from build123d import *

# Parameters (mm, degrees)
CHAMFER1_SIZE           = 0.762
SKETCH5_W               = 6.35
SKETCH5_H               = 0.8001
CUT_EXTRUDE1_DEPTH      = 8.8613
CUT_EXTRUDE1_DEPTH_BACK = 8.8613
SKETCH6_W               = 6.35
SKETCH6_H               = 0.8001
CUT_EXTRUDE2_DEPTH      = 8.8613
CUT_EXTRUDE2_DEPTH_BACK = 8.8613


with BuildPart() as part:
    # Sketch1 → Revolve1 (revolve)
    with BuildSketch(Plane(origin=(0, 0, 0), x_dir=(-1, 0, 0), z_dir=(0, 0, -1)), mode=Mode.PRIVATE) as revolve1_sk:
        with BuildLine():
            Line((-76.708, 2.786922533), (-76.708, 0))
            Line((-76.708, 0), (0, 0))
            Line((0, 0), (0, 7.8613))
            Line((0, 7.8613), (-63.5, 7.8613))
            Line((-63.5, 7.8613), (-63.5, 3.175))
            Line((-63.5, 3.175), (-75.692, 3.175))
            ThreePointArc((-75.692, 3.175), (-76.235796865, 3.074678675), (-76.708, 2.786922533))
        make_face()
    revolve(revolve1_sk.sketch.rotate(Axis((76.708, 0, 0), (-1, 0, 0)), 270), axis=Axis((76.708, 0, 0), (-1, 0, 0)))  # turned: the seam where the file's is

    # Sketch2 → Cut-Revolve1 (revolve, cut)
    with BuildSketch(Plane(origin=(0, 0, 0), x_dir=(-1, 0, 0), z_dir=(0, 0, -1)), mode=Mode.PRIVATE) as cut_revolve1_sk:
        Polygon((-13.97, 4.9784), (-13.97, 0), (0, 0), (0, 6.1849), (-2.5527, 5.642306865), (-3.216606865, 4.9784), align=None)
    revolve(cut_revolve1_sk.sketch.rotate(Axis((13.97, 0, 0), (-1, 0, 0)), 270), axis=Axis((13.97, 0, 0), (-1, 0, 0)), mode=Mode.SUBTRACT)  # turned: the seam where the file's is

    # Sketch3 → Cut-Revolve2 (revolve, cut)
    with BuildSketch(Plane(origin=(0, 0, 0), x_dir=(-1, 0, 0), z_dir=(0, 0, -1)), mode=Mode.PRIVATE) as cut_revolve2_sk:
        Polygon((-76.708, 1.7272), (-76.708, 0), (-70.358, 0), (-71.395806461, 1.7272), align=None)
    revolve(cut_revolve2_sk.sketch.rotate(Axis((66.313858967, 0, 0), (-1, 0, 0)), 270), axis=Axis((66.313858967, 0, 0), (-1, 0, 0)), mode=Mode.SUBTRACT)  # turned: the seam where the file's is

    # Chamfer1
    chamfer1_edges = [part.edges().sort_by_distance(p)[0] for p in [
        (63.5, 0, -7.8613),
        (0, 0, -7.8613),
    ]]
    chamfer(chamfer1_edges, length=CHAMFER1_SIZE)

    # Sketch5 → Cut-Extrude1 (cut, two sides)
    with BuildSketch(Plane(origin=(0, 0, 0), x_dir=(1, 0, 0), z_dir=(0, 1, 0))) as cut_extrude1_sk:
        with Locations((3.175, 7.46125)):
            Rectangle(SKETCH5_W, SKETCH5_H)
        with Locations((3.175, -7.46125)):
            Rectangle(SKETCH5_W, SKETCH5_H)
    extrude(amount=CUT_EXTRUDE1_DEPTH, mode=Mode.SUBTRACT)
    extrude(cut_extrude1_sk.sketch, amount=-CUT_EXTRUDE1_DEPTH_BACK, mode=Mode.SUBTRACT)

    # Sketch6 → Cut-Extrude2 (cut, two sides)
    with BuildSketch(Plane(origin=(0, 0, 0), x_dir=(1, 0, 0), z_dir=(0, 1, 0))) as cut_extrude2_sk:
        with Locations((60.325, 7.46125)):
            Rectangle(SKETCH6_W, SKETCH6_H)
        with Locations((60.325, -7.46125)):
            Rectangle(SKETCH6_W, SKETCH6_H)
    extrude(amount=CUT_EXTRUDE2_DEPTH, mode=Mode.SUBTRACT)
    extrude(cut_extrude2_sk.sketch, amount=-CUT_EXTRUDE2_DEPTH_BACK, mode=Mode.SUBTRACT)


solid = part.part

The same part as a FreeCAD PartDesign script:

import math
import FreeCAD as App
import Part
import Sketcher

V = App.Vector
Q = App.Units.Quantity


def edges_at(feature, points):
    """Names of the edges that pass closest to the given points."""
    edges = feature.Shape.Edges
    near = lambda p: min(range(len(edges)), key=lambda i: edges[i].distToShape(Part.Vertex(*p))[0])
    return sorted({f"Edge{near(p) + 1}" for p in points})


def add_polygon(sketch, points):
    """Adds a closed chain of lines whose ends are joined by coincident constraints."""
    first, n = sketch.GeometryCount, len(points)
    for a, b in zip(points, points[1:] + points[:1]):
        sketch.addGeometry(Part.LineSegment(App.Vector(*a, 0), App.Vector(*b, 0)), False)
    for i in range(n):
        sketch.addConstraint(Sketcher.Constraint("Coincident", first + i, 2, first + (i + 1) % n, 1))

doc = App.newDocument("Part")
body = doc.addObject("PartDesign::Body", "Body")

sketch1 = body.newObject("Sketcher::SketchObject", "Sketch")
sketch1.AttachmentSupport = (doc.getObject("XY_Plane"), [""])
sketch1.MapMode = "FlatFace"
sketch1.addGeometry([
    Part.LineSegment(V(76.7, 2.8, 0), V(76.7, 0, 0)),
    Part.LineSegment(V(76.7, 0, 0), V(0, 0, 0)),
    Part.LineSegment(V(0, 0, 0), V(0, 7.9, 0)),
    Part.LineSegment(V(0, 7.9, 0), V(63.5, 7.9, 0)),
    Part.LineSegment(V(63.5, 7.9, 0), V(63.5, 3.2, 0)),
    Part.LineSegment(V(63.5, 3.2, 0), V(75.7, 3.2, 0)),
    Part.ArcOfCircle(Part.Circle(V(75.7, 1.7, 0), V(0, 0, 1), 1.5), math.radians(48), math.radians(90)),
], False)
sketch1.addConstraint([
    Sketcher.Constraint("Coincident", 0, 2, 1, 1),
    Sketcher.Constraint("Coincident", 1, 2, 2, 1),
    Sketcher.Constraint("Coincident", 2, 2, 3, 1),
    Sketcher.Constraint("Coincident", 3, 2, 4, 1),
    Sketcher.Constraint("Coincident", 4, 2, 5, 1),
    Sketcher.Constraint("Tangent", 5, 2, 6, 2),
    Sketcher.Constraint("Coincident", 6, 1, 0, 1),
    Sketcher.Constraint("Vertical", 0),
    Sketcher.Constraint("Horizontal", 1),
    Sketcher.Constraint("Vertical", 2),
    Sketcher.Constraint("Horizontal", 3),
    Sketcher.Constraint("Vertical", 4),
    Sketcher.Constraint("Horizontal", 5),
    Sketcher.Constraint("Coincident", 1, 2, -1, 1),
    Sketcher.Constraint("Radius", 6, Q("0.06 in")),
    Sketcher.Constraint("DistanceX", 3, 1, 3, 2, Q("2.5 in")),
    Sketcher.Constraint("DistanceX", 1, 2, 1, 1, Q("3.02 in")),
    Sketcher.Constraint("DistanceX", 5, 1, 5, 2, Q("0.48 in")),
    Sketcher.Constraint("DistanceY", 2, 1, 2, 2, Q("0.3095 in")),
    Sketcher.Constraint("DistanceY", 4, 2, 4, 1, Q("0.1845 in")),
])
revolution = body.newObject("PartDesign::Revolution", "Revolution")
revolution.Profile = sketch1
revolution.ReferenceAxis = (sketch1, ["H_Axis"])
revolution.Angle = 360

sketch2 = body.newObject("Sketcher::SketchObject", "Sketch001")
sketch2.AttachmentSupport = (doc.getObject("XY_Plane"), [""])
sketch2.MapMode = "FlatFace"
add_polygon(sketch2, [(14, 5), (14, 0), (0, 0), (0, 6.2), (2.6, 5.6), (3.2, 5)])
sketch2.addConstraint([
    Sketcher.Constraint("Vertical", 0),
    Sketcher.Constraint("Horizontal", 1),
    Sketcher.Constraint("Vertical", 2),
    Sketcher.Constraint("Horizontal", 5),
    Sketcher.Constraint("Coincident", 1, 2, -1, 1),
    Sketcher.Constraint("Angle", 3, Q("-12 deg")),
    Sketcher.Constraint("Angle", 4, Q("-45 deg")),
    Sketcher.Constraint("DistanceX", 1, 2, 1, 1, Q("0.55 in")),
    Sketcher.Constraint("DistanceY", 0, 2, 0, 1, Q("0.196 in")),
    Sketcher.Constraint("DistanceY", 2, 1, 2, 2, Q("0.2435 in")),
    Sketcher.Constraint("DistanceX", -1, 1, 3, 2, Q("0.1005 in")),
])
groove = body.newObject("PartDesign::Groove", "Groove")
groove.Profile = sketch2
groove.ReferenceAxis = (sketch2, ["H_Axis"])
groove.Angle = 360

sketch3 = body.newObject("Sketcher::SketchObject", "Sketch002")
sketch3.AttachmentSupport = (doc.getObject("XY_Plane"), [""])
sketch3.MapMode = "FlatFace"
add_polygon(sketch3, [(76.7, 1.7), (76.7, 0), (70.4, 0), (71.4, 1.7)])
sketch3.addConstraint([
    Sketcher.Constraint("Vertical", 0),
    Sketcher.Constraint("Horizontal", 1),
    Sketcher.Constraint("Horizontal", 3),
    Sketcher.Constraint("PointOnObject", 0, 2, -1),
    Sketcher.Constraint("Angle", 2, Q("59 deg")),
    Sketcher.Constraint("DistanceX", 1, 2, 1, 1, Q("0.25 in")),
    Sketcher.Constraint("DistanceY", 0, 2, 0, 1, Q("0.068 in")),
    Sketcher.Constraint("DistanceX", -1, 1, 0, 2, Q("3.02 in")),
])
groove2 = body.newObject("PartDesign::Groove", "Groove001")
groove2.Profile = sketch3
groove2.ReferenceAxis = (sketch3, ["H_Axis"])
groove2.Angle = 360
doc.recompute()

chamfer = body.newObject("PartDesign::Chamfer", "Chamfer")
chamfer.Base = (groove2, edges_at(groove2, [(63.5, 0, -7.861), (0, 0, -7.861)]))
chamfer.Size = Q("0.03 in")

sketch4 = body.newObject("Sketcher::SketchObject", "Sketch003")
sketch4.AttachmentSupport = (doc.getObject("XZ_Plane"), [""])
sketch4.MapMode = "FlatFace"
add_polygon(sketch4, [(0, -7.9), (0, -7.1), (6.3, -7.1), (6.3, -7.9)])
add_polygon(sketch4, [(0, 7.1), (0, 7.9), (6.3, 7.9), (6.3, 7.1)])
sketch4.addConstraint([
    Sketcher.Constraint("Vertical", 0),
    Sketcher.Constraint("Horizontal", 1),
    Sketcher.Constraint("Vertical", 2),
    Sketcher.Constraint("Horizontal", 3),
    Sketcher.Constraint("Vertical", 4),
    Sketcher.Constraint("Horizontal", 5),
    Sketcher.Constraint("Vertical", 6),
    Sketcher.Constraint("Horizontal", 7),
    Sketcher.Constraint("Symmetric", 3, 2, 4, 2, -1, 1),
    Sketcher.Constraint("Symmetric", 1, 2, 6, 2, -1),
    Sketcher.Constraint("PointOnObject", 0, 2, -2),
    Sketcher.Constraint("DistanceX", 1, 1, 1, 2, Q("0.25 in")),
    Sketcher.Constraint("DistanceY", 0, 1, 0, 2, Q("0.0315 in")),
    Sketcher.Constraint("DistanceY", 0, 2, -1, 1, Q("0.278 in")),
])
pocket1 = body.newObject("PartDesign::Pocket", "Pocket")
pocket1.Profile = sketch4
pocket1.Type = "ThroughAll"
pocket1.Midplane = True

sketch5 = body.newObject("Sketcher::SketchObject", "Sketch004")
sketch5.AttachmentSupport = (doc.getObject("XZ_Plane"), [""])
sketch5.MapMode = "FlatFace"
add_polygon(sketch5, [(57.1, -7.9), (57.1, -7.1), (63.5, -7.1), (63.5, -7.9)])
add_polygon(sketch5, [(57.1, 7.1), (57.1, 7.9), (63.5, 7.9), (63.5, 7.1)])
sketch5.addConstraint([
    Sketcher.Constraint("Vertical", 0),
    Sketcher.Constraint("Horizontal", 1),
    Sketcher.Constraint("Vertical", 2),
    Sketcher.Constraint("Horizontal", 3),
    Sketcher.Constraint("Vertical", 4),
    Sketcher.Constraint("Horizontal", 5),
    Sketcher.Constraint("Vertical", 6),
    Sketcher.Constraint("Horizontal", 7),
    Sketcher.Constraint("Symmetric", 3, 2, 4, 2, -1),
    Sketcher.Constraint("Symmetric", 1, 2, 6, 2, -1),
    Sketcher.Constraint("DistanceX", 1, 1, 1, 2, Q("0.25 in")),
    Sketcher.Constraint("DistanceX", -1, 1, 1, 2, Q("2.5 in")),
    Sketcher.Constraint("DistanceY", 0, 1, 0, 2, Q("0.0315 in")),
    Sketcher.Constraint("DistanceY", 0, 2, -1, 1, Q("0.278 in")),
])
pocket2 = body.newObject("PartDesign::Pocket", "Pocket001")
pocket2.Profile = sketch5
pocket2.Type = "ThroughAll"
pocket2.Midplane = True

doc.recompute()
